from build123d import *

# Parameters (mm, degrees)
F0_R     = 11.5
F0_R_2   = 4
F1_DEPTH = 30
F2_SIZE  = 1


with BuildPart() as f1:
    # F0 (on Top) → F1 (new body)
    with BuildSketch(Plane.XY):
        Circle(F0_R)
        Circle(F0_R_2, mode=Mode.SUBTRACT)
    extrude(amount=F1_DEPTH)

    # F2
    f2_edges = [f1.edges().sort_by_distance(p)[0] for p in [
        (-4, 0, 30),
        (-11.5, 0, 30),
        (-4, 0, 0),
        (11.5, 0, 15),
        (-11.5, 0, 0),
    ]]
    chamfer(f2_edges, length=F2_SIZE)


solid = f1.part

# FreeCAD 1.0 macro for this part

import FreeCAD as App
import Part
import Sketcher

V = App.Vector

doc = App.newDocument("Part")
body = doc.addObject("PartDesign::Body", "Body")

# Sketch on XY plane
sketch1 = body.newObject("Sketcher::SketchObject", "Sketch")
sketch1.AttachmentSupport = (doc.getObject("XY_Plane"), [""])
sketch1.MapMode = "FlatFace"
sketch1.addGeometry([
    Part.Circle(V(0, 0, 0), V(0, 0, 1), 11.5),
    Part.Circle(V(0, 0, 0), V(0, 0, 1), 4),
], False)
sketch1.addConstraint([
    Sketcher.Constraint("Coincident", 0, 3, -1, 1),
    Sketcher.Constraint("Coincident", 1, 3, -1, 1),
    Sketcher.Constraint("Diameter", 0, 23.0),
    Sketcher.Constraint("Diameter", 1, 8.0),
])
pad1 = body.newObject("PartDesign::Pad", "Pad")
pad1.Profile = sketch1
pad1.Length = 30
doc.recompute()

chamfer = body.newObject("PartDesign::Chamfer", "Chamfer")
chamfer.Base = (pad1, ["Edge1"])
chamfer.UseAllEdges = True
chamfer.Size = 1

doc.recompute()
